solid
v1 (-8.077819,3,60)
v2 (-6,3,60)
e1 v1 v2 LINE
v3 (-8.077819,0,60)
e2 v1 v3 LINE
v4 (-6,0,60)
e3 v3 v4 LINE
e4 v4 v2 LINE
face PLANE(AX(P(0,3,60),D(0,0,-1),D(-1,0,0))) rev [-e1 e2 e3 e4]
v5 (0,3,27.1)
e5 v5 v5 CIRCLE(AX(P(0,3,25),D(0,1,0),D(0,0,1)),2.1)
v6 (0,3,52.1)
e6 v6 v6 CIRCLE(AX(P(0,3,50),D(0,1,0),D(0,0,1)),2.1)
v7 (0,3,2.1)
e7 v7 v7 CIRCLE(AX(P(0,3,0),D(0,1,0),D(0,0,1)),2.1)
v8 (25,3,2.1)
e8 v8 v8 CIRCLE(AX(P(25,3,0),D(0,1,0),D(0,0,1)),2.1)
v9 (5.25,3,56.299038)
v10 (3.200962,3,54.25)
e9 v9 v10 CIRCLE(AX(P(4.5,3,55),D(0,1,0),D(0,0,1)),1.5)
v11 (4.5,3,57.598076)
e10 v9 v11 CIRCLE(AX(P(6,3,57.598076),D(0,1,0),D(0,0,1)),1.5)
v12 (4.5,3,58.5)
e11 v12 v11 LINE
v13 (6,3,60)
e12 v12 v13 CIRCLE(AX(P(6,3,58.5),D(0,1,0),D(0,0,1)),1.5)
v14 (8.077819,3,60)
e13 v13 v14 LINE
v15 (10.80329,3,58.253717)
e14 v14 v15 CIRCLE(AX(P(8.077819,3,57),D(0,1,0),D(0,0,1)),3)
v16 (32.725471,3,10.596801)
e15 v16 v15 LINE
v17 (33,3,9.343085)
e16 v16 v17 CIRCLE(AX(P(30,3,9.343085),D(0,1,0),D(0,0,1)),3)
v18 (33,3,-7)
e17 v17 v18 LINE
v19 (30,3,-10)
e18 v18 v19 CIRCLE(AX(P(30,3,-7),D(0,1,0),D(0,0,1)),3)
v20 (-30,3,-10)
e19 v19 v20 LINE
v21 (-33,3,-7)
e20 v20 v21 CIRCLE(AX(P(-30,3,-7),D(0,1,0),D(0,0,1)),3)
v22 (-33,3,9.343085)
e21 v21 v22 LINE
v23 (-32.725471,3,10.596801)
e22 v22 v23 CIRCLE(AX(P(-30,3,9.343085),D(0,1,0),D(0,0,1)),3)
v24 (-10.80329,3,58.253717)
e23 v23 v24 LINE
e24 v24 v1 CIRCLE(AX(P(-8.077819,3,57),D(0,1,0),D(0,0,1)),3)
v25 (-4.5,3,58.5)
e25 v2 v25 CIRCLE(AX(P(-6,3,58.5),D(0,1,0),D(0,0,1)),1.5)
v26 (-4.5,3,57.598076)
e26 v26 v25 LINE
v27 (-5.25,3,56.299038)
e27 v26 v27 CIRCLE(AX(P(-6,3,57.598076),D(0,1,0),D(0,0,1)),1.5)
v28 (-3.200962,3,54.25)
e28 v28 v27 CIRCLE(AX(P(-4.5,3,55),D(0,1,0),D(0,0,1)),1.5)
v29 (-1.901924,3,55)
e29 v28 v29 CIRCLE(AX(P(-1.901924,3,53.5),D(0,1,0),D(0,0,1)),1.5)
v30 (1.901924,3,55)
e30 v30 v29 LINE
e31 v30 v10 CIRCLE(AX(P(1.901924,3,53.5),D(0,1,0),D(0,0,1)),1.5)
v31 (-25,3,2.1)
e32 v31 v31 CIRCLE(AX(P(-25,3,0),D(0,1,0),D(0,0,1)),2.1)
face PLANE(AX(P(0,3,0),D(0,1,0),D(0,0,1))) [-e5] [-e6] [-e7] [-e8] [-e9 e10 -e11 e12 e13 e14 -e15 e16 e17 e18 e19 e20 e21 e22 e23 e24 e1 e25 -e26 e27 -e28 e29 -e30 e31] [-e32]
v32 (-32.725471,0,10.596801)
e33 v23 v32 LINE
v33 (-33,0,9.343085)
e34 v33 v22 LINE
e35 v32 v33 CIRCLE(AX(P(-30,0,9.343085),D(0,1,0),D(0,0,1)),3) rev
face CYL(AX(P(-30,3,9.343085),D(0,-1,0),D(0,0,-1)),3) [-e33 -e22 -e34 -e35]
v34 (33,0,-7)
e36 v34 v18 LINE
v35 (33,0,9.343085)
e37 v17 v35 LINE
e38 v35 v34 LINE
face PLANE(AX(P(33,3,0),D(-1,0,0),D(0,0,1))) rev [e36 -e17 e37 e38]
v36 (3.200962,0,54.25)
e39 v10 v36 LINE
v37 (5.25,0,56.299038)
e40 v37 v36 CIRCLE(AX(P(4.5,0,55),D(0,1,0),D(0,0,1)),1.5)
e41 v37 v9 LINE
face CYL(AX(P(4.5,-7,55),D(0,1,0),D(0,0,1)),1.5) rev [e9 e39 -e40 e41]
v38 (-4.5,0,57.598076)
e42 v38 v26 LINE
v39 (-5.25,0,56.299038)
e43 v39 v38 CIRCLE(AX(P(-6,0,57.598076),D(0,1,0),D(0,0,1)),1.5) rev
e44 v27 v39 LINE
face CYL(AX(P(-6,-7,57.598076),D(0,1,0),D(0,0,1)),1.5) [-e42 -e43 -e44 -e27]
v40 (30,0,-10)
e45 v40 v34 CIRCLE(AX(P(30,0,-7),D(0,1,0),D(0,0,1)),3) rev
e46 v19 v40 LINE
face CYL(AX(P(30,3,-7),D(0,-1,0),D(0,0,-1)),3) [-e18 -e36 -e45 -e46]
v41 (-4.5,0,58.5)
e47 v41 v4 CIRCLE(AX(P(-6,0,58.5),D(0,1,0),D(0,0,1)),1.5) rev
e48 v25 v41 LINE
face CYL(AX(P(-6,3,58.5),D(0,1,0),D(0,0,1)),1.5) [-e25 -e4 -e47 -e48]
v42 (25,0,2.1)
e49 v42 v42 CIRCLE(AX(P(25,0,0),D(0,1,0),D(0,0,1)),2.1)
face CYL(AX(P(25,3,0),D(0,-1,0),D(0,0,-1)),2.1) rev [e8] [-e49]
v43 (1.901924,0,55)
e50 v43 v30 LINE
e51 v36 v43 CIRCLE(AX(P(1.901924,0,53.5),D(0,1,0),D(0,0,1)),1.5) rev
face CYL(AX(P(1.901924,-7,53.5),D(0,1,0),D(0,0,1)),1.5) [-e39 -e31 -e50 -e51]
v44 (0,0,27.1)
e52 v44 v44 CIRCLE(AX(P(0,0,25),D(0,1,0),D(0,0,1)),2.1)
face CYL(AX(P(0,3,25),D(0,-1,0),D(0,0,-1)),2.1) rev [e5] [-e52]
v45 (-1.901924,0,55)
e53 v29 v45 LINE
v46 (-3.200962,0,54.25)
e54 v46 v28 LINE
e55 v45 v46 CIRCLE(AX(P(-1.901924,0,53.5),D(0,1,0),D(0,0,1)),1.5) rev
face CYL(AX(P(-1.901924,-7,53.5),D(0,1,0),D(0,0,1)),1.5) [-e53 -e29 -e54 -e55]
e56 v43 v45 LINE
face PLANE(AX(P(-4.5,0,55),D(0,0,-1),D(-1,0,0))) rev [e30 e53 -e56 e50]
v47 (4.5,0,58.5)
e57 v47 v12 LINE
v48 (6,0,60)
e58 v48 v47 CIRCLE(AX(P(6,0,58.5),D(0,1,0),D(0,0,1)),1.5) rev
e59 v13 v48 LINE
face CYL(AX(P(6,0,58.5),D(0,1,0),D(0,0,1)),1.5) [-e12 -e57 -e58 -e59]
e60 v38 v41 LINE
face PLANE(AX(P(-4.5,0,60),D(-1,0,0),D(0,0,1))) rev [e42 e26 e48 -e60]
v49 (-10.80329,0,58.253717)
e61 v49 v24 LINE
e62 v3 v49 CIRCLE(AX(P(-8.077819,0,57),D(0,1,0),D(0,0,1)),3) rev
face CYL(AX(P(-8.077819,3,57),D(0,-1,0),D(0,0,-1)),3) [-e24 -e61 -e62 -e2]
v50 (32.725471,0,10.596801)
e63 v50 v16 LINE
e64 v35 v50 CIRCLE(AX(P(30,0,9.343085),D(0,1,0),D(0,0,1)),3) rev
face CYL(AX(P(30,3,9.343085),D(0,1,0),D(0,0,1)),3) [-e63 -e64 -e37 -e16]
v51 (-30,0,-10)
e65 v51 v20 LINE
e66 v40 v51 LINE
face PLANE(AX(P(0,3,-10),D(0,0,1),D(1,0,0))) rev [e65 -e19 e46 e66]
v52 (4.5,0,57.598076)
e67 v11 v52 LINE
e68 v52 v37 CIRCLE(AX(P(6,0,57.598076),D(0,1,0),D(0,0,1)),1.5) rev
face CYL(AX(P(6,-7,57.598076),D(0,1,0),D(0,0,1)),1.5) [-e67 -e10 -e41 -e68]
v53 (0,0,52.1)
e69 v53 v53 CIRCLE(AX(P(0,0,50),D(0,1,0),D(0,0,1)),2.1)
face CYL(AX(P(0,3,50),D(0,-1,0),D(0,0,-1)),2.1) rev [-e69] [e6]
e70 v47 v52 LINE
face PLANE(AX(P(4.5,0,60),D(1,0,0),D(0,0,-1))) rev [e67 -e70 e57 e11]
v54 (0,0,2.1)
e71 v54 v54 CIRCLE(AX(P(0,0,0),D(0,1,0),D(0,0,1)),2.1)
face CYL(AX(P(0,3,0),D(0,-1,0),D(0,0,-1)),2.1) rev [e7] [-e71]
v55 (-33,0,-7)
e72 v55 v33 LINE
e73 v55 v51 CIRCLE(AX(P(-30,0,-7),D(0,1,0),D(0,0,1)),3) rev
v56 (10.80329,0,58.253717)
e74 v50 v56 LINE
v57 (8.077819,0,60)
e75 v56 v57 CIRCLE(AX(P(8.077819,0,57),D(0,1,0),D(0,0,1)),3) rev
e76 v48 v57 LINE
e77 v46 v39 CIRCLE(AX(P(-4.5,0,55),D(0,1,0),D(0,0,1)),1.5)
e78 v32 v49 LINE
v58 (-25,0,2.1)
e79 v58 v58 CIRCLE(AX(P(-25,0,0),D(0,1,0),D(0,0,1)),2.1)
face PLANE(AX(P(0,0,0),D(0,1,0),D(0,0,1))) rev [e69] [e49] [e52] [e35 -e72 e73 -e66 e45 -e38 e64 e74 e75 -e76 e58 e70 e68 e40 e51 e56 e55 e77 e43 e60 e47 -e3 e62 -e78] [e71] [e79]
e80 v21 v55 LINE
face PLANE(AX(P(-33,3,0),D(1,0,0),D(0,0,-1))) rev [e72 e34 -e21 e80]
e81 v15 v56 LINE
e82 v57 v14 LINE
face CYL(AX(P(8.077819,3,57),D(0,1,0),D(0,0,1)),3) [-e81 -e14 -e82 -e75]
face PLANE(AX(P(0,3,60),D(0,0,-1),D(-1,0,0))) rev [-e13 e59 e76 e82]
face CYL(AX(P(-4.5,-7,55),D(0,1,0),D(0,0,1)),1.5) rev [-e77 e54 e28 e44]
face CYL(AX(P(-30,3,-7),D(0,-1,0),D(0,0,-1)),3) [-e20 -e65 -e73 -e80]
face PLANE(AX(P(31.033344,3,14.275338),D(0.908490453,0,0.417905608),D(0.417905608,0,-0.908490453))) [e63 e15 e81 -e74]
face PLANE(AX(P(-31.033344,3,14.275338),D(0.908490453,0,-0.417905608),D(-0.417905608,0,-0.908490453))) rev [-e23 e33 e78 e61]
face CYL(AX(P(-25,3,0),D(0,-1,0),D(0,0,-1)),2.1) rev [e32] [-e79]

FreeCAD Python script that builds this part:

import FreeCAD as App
import Part
import Sketcher
from FreeCAD import Vector


def edges_at(feature, points):
    """Names of the edges that pass closest to the given points."""
    edges = feature.Shape.Edges
    near = lambda p: min(range(len(edges)), key=lambda i: edges[i].distToShape(Part.Vertex(*p))[0])
    return sorted({f"Edge{near(p) + 1}" for p in points})


def add_polygon(sketch, points):
    """Adds a closed chain of lines whose ends are joined by coincident constraints."""
    first, n = sketch.GeometryCount, len(points)
    for a, b in zip(points, points[1:] + points[:1]):
        sketch.addGeometry(Part.LineSegment(App.Vector(*a, 0), App.Vector(*b, 0)), False)
    for i in range(n):
        sketch.addConstraint(Sketcher.Constraint("Coincident", first + i, 2, first + (i + 1) % n, 1))

doc = App.newDocument("Part")
body = doc.addObject("PartDesign::Body", "Body")

sketch1 = doc.addObject("Sketcher::SketchObject", "Sketch")
body.addObject(sketch1)
sketch1.AttachmentSupport = (doc.XZ_Plane, [""])
sketch1.MapMode = "FlatFace"
add_polygon(sketch1, [(33, -10), (-33, -10), (-33, 10), (-10, 60), (10, 60), (33, 10)])
sketch1.addGeometry(Part.Circle(Vector(0, 50, 0), Vector(0, 0, 1), 2.1), False)
sketch1.addGeometry(Part.Circle(Vector(-25, 0, 0), Vector(0, 0, 1), 2.1), False)
sketch1.addGeometry(Part.Circle(Vector(0, 25, 0), Vector(0, 0, 1), 2.1), False)
sketch1.addGeometry(Part.Circle(Vector(0, 0, 0), Vector(0, 0, 1), 2.1), False)
sketch1.addGeometry(Part.Circle(Vector(25, 0, 0), Vector(0, 0, 1), 2.1), False)
sketch1.addConstraint(Sketcher.Constraint("Horizontal", 0))
sketch1.addConstraint(Sketcher.Constraint("Vertical", 1))
sketch1.addConstraint(Sketcher.Constraint("Horizontal", 3))
sketch1.addConstraint(Sketcher.Constraint("Vertical", 5))
sketch1.addConstraint(Sketcher.Constraint("Coincident", 9, 3, -1, 1))
sketch1.addConstraint(Sketcher.Constraint("Equal", 6, 7))
sketch1.addConstraint(Sketcher.Constraint("Equal", 7, 8))
sketch1.addConstraint(Sketcher.Constraint("Equal", 8, 9))
sketch1.addConstraint(Sketcher.Constraint("Equal", 9, 10))
sketch1.addConstraint(Sketcher.Constraint("Symmetric", 7, 3, 10, 3, -1, 1))
sketch1.addConstraint(Sketcher.Constraint("Symmetric", 0, 2, 4, 2, -1, 1))
sketch1.addConstraint(Sketcher.Constraint("PointOnObject", 6, 3, -2))
sketch1.addConstraint(Sketcher.Constraint("PointOnObject", 7, 3, -1))
sketch1.addConstraint(Sketcher.Constraint("PointOnObject", 8, 3, -2))
sketch1.addConstraint(Sketcher.Constraint("Horizontal", 1, 2, 4, 2))
sketch1.addConstraint(Sketcher.Constraint("Equal", 3, 1))
sketch1.addConstraint(Sketcher.Constraint("Equal", 2, 4))
sketch1.addConstraint(Sketcher.Constraint("Diameter", 6, 4.2))
sketch1.addConstraint(Sketcher.Constraint("DistanceX", 0, 2, 0, 1, 66.0))
sketch1.addConstraint(Sketcher.Constraint("DistanceX", 3, 1, 3, 2, 20.0))
sketch1.addConstraint(Sketcher.Constraint("DistanceY", -1, 1, 6, 3, 50.0))
sketch1.addConstraint(Sketcher.Constraint("DistanceX", 7, 3, -1, 1, 25.0))
sketch1.addConstraint(Sketcher.Constraint("DistanceY", -1, 1, 8, 3, 25.0))
sketch1.addConstraint(Sketcher.Constraint("DistanceY", -1, 1, 2, 2, 60.0))
pad1 = doc.addObject("PartDesign::Pad", "Pad")
body.addObject(pad1)
pad1.Profile = sketch1
pad1.Length = 3
pad1.Reversed = True
doc.recompute()

fillet = doc.addObject("PartDesign::Fillet", "Fillet")
body.addObject(fillet)
fillet.Base = (pad1, edges_at(pad1, [
    (10, 1.5, 60),
    (-10, 1.5, 60),
    (-33, 1.5, 10),
    (-33, 1.5, -10),
    (33, 1.5, -10),
    (33, 1.5, 10),
]))
fillet.Radius = 3

sketch2 = doc.addObject("Sketcher::SketchObject", "Sketch001")
body.addObject(sketch2)
sketch2.AttachmentSupport = (doc.XZ_Plane, [""])
sketch2.MapMode = "FlatFace"
sketch2.AttachmentOffset = App.Placement(Vector(0, 0, -3), App.Rotation())
add_polygon(sketch2, [(-4, 55), (-4, 60), (4, 60), (4, 55)])
sketch2.addConstraint(Sketcher.Constraint("Vertical", 0))
sketch2.addConstraint(Sketcher.Constraint("Horizontal", 1))
sketch2.addConstraint(Sketcher.Constraint("Vertical", 2))
sketch2.addConstraint(Sketcher.Constraint("Horizontal", 3))
sketch2.addConstraint(Sketcher.Constraint("DistanceX", 1, 1, 1, 2, 9.0))
sketch2.addConstraint(Sketcher.Constraint("DistanceY", 0, 1, 0, 2, 5.0))
sketch2.addConstraint(Sketcher.Constraint("DistanceY", -1, 1, 0, 2, 60.0))
sketch2.addConstraint(Sketcher.Constraint("DistanceX", 0, 2, -1, 1, 4.5))
pocket1 = doc.addObject("PartDesign::Pocket", "Pocket")
body.addObject(pocket1)
pocket1.Profile = sketch2
pocket1.Length = 3
pocket1.Reversed = True

sketch3 = doc.addObject("Sketcher::SketchObject", "Sketch002")
body.addObject(sketch3)
sketch3.AttachmentSupport = (doc.XZ_Plane, [""])
sketch3.MapMode = "FlatFace"
sketch3.AttachmentOffset = App.Placement(Vector(0, 0, -3), App.Rotation())
sketch3.addGeometry(Part.Circle(Vector(-4.5, 55, 0), Vector(0, 0, 1), 1.5), False)
sketch3.addGeometry(Part.Circle(Vector(4.5, 55, 0), Vector(0, 0, 1), 1.5), False)
sketch3.addConstraint(Sketcher.Constraint("Equal", 0, 1))
sketch3.addConstraint(Sketcher.Constraint("Symmetric", 0, 3, 1, 3, -2))
sketch3.addConstraint(Sketcher.Constraint("Diameter", 0, 3.0))
sketch3.addConstraint(Sketcher.Constraint("DistanceY", -1, 1, 0, 3, 55.0))
sketch3.addConstraint(Sketcher.Constraint("DistanceX", 0, 3, 1, 3, 9.0))
pocket2 = doc.addObject("PartDesign::Pocket", "Pocket001")
body.addObject(pocket2)
pocket2.Profile = sketch3
pocket2.Length = 10
pocket2.Reversed = True
doc.recompute()

fillet2 = doc.addObject("PartDesign::Fillet", "Fillet001")
body.addObject(fillet2)
fillet2.Base = (pocket2, edges_at(pocket2, [
    (-4.5, 1.5, 56.5),
    (3, 1.5, 55),
    (-4.5, 1.5, 60),
    (4.5, 1.5, 60),
    (4.5, 1.5, 56.5),
    (-3, 1.5, 55),
]))
fillet2.Radius = 1.5

doc.recompute()
